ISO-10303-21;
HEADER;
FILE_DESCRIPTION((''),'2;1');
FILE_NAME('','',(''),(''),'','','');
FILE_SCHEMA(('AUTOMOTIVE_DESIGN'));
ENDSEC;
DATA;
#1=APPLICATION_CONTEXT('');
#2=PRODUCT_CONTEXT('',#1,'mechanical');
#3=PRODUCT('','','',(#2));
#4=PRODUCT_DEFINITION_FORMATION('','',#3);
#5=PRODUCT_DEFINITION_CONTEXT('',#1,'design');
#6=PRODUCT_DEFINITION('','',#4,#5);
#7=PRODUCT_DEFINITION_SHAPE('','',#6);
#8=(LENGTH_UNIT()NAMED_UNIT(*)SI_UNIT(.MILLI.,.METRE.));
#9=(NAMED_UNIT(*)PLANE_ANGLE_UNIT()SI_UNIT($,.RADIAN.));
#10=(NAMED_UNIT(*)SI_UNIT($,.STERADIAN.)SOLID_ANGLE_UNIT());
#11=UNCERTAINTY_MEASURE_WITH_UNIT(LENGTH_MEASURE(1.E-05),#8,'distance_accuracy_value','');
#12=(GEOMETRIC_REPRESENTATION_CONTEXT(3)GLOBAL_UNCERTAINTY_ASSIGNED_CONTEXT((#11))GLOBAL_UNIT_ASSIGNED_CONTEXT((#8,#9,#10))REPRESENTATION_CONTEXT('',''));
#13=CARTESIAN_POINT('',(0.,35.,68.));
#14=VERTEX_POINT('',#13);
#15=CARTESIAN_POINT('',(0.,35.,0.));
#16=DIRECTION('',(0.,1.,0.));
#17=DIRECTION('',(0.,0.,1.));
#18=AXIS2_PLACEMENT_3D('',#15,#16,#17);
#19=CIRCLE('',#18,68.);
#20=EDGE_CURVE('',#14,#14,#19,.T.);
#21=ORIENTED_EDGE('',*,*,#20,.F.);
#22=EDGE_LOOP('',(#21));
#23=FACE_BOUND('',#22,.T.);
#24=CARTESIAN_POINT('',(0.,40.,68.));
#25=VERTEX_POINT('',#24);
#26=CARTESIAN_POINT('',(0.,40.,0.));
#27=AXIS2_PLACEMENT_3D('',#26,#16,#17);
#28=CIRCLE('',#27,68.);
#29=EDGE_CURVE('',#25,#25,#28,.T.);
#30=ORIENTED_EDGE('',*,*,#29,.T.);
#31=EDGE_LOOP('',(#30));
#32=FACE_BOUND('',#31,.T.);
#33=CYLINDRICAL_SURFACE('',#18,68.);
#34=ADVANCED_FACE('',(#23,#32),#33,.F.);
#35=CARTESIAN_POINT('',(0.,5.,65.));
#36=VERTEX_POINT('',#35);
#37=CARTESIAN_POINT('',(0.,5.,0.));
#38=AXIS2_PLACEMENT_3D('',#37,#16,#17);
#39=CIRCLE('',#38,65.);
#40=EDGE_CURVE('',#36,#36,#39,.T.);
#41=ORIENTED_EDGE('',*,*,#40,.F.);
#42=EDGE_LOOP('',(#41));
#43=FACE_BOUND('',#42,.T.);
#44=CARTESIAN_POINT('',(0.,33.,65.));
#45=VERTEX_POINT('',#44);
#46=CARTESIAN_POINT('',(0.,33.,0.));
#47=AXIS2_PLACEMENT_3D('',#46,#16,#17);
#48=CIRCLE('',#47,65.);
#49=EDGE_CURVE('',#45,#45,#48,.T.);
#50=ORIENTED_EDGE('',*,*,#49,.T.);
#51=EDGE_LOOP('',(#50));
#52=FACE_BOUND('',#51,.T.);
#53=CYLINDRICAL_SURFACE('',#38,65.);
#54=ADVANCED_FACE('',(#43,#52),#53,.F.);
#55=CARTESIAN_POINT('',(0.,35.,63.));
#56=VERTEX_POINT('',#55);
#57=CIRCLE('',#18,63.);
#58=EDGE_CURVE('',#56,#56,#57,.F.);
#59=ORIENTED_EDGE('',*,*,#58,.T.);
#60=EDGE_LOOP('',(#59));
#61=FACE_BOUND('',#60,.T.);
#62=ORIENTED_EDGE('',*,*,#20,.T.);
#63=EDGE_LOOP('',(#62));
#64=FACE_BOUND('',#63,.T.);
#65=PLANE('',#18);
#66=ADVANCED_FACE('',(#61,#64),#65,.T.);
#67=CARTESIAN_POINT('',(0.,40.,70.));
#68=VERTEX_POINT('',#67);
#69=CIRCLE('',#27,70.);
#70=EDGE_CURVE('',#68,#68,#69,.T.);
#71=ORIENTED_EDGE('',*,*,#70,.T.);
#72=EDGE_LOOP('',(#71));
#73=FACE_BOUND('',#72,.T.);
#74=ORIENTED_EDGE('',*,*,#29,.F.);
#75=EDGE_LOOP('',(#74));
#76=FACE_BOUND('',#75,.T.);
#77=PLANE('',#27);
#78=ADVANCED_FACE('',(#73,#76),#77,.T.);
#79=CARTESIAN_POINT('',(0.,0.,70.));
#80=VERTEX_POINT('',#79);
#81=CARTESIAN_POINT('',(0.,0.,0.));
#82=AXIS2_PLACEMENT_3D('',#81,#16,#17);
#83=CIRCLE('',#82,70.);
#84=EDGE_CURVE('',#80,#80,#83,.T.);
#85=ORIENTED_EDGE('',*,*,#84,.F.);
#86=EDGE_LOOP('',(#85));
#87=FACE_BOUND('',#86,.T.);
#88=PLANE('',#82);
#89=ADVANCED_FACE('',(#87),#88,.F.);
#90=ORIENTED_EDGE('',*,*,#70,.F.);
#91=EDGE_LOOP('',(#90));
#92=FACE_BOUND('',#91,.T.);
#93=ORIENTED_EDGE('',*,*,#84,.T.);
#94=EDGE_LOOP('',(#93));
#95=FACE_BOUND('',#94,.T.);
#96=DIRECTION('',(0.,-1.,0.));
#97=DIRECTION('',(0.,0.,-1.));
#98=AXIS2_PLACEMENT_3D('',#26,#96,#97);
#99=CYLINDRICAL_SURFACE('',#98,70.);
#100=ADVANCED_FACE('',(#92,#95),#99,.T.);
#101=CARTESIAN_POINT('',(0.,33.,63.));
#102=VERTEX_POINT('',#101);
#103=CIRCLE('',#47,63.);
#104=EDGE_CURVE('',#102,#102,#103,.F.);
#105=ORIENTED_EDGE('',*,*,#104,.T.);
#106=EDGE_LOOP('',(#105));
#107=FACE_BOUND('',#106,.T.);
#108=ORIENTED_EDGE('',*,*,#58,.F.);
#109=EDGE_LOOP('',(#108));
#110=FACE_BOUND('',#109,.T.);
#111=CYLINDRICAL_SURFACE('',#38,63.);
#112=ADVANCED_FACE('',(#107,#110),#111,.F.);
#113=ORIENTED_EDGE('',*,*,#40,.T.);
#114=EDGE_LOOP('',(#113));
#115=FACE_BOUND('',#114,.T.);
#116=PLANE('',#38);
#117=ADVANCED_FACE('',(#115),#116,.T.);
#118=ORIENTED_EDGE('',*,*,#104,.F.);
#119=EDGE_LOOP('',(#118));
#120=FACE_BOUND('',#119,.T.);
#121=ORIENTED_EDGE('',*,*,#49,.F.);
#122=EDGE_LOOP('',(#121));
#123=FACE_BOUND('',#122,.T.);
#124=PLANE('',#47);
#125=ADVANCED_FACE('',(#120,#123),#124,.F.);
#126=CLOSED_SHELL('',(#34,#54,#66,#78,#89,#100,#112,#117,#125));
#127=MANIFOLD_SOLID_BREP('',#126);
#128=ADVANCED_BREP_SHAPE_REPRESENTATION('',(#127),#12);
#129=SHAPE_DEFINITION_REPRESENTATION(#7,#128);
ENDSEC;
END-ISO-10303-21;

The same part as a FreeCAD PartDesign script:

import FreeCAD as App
import Part
import Sketcher
from FreeCAD import Vector

doc = App.newDocument("Part")
body = doc.addObject("PartDesign::Body", "Body")

# Sketch on XZ plane
sketch1 = body.newObject("Sketcher::SketchObject", "Sketch")
sketch1.AttachmentSupport = (doc.getObject("XZ_Plane"), [""])
sketch1.MapMode = "FlatFace"
sketch1.addGeometry(Part.Circle(Vector(0, 0, 0), Vector(0, 0, 1), 70), False)
sketch1.addConstraint(Sketcher.Constraint("Coincident", 0, 3, -1, 1))
sketch1.addConstraint(Sketcher.Constraint("Diameter", 0, 140.0))
pad1 = body.newObject("PartDesign::Pad", "Pad")
pad1.Profile = sketch1
pad1.Length = 40
pad1.Reversed = True

# Sketch on XZ plane
sketch2 = body.newObject("Sketcher::SketchObject", "Sketch001")
sketch2.AttachmentSupport = (doc.getObject("XZ_Plane"), [""])
sketch2.MapMode = "FlatFace"
sketch2.AttachmentOffset = App.Placement(Vector(0, 0, -40), App.Rotation())
sketch2.addGeometry(Part.Circle(Vector(0, 0, 0), Vector(0, 0, 1), 63), False)
sketch2.addConstraint(Sketcher.Constraint("Coincident", 0, 3, -1, 1))
sketch2.addConstraint(Sketcher.Constraint("Diameter", 0, 126.0))
pocket1 = body.newObject("PartDesign::Pocket", "Pocket")
pocket1.Profile = sketch2
pocket1.Length = 35
pocket1.Reversed = True

# Sketch on XZ plane
sketch3 = body.newObject("Sketcher::SketchObject", "Sketch002")
sketch3.AttachmentSupport = (doc.getObject("XZ_Plane"), [""])
sketch3.MapMode = "FlatFace"
sketch3.AttachmentOffset = App.Placement(Vector(0, 0, -40), App.Rotation())
sketch3.addGeometry(Part.Circle(Vector(0, 0, 0), Vector(0, 0, 1), 68), False)
sketch3.addConstraint(Sketcher.Constraint("Coincident", 0, 3, -1, 1))
sketch3.addConstraint(Sketcher.Constraint("Diameter", 0, 136.0))
pocket2 = body.newObject("PartDesign::Pocket", "Pocket001")
pocket2.Profile = sketch3
pocket2.Length = 5
pocket2.Reversed = True

# Sketch on XZ plane
sketch4 = body.newObject("Sketcher::SketchObject", "Sketch003")
sketch4.AttachmentSupport = (doc.getObject("XZ_Plane"), [""])
sketch4.MapMode = "FlatFace"
sketch4.AttachmentOffset = App.Placement(Vector(0, 0, -33), App.Rotation())
sketch4.addGeometry(Part.Circle(Vector(0, 0, 0), Vector(0, 0, 1), 65), False)
sketch4.addConstraint(Sketcher.Constraint("Coincident", 0, 3, -1, 1))
sketch4.addConstraint(Sketcher.Constraint("Diameter", 0, 130.0))
pocket3 = body.newObject("PartDesign::Pocket", "Pocket002")
pocket3.Profile = sketch4
pocket3.Length = 28
pocket3.Reversed = True

doc.recompute()
